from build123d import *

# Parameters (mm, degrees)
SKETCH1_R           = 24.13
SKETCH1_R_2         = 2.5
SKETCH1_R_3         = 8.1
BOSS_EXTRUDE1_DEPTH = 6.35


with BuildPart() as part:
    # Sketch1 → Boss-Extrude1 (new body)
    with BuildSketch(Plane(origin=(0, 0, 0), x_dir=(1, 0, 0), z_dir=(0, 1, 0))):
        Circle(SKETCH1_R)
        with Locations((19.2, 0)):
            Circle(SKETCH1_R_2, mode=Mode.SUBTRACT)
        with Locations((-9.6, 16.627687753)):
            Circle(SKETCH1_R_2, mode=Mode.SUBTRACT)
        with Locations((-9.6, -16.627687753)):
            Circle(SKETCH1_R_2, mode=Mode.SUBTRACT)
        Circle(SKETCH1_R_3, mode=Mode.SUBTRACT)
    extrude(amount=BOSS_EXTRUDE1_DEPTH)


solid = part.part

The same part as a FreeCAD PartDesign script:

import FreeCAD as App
import Part
import Sketcher
from FreeCAD import Vector

doc = App.newDocument("Part")
body = doc.addObject("PartDesign::Body", "Body")

# Sketch on XZ plane
sketch1 = doc.addObject("Sketcher::SketchObject", "Sketch")
body.addObject(sketch1)
sketch1.AttachmentSupport = (doc.XZ_Plane, [""])
sketch1.MapMode = "FlatFace"
sketch1.addGeometry([
    Part.Circle(Vector(0, 0, 0), Vector(0, 0, 1), 24.1),  # 0
    Part.Circle(Vector(-9.6, 16.6, 0), Vector(0, 0, 1), 2.5),  # 1
    Part.Circle(Vector(0, 0, 0), Vector(0, 0, 1), 8.1),  # 2
    Part.Circle(Vector(-9.6, -16.6, 0), Vector(0, 0, 1), 2.5),  # 3
    Part.Circle(Vector(19.2, 0, 0), Vector(0, 0, 1), 2.5),  # 4
], False)
sketch1.addConstraint([
    Sketcher.Constraint("Coincident", 0, 3, -1, 1),
    Sketcher.Constraint("Coincident", 2, 3, -1, 1),
    Sketcher.Constraint("Equal", 1, 3),
    Sketcher.Constraint("Equal", 3, 4),
    Sketcher.Constraint("Symmetric", 1, 3, 3, 3, -1),
    Sketcher.Constraint("PointOnObject", 4, 3, -1),
    Sketcher.Constraint("Diameter", 1, 5.0),
    Sketcher.Constraint("Diameter", 2, 16.2),
    Sketcher.Constraint("Diameter", 0, 48.26),
    Sketcher.Constraint("DistanceX", 1, 3, -1, 1, 9.6),
    Sketcher.Constraint("DistanceX", -1, 1, 4, 3, 19.2),
    Sketcher.Constraint("DistanceY", -1, 1, 1, 3, 16.627688),
])
pad1 = doc.addObject("PartDesign::Pad", "Pad")
body.addObject(pad1)
pad1.Profile = sketch1
pad1.Length = 6.35
pad1.Reversed = True

doc.recompute()
